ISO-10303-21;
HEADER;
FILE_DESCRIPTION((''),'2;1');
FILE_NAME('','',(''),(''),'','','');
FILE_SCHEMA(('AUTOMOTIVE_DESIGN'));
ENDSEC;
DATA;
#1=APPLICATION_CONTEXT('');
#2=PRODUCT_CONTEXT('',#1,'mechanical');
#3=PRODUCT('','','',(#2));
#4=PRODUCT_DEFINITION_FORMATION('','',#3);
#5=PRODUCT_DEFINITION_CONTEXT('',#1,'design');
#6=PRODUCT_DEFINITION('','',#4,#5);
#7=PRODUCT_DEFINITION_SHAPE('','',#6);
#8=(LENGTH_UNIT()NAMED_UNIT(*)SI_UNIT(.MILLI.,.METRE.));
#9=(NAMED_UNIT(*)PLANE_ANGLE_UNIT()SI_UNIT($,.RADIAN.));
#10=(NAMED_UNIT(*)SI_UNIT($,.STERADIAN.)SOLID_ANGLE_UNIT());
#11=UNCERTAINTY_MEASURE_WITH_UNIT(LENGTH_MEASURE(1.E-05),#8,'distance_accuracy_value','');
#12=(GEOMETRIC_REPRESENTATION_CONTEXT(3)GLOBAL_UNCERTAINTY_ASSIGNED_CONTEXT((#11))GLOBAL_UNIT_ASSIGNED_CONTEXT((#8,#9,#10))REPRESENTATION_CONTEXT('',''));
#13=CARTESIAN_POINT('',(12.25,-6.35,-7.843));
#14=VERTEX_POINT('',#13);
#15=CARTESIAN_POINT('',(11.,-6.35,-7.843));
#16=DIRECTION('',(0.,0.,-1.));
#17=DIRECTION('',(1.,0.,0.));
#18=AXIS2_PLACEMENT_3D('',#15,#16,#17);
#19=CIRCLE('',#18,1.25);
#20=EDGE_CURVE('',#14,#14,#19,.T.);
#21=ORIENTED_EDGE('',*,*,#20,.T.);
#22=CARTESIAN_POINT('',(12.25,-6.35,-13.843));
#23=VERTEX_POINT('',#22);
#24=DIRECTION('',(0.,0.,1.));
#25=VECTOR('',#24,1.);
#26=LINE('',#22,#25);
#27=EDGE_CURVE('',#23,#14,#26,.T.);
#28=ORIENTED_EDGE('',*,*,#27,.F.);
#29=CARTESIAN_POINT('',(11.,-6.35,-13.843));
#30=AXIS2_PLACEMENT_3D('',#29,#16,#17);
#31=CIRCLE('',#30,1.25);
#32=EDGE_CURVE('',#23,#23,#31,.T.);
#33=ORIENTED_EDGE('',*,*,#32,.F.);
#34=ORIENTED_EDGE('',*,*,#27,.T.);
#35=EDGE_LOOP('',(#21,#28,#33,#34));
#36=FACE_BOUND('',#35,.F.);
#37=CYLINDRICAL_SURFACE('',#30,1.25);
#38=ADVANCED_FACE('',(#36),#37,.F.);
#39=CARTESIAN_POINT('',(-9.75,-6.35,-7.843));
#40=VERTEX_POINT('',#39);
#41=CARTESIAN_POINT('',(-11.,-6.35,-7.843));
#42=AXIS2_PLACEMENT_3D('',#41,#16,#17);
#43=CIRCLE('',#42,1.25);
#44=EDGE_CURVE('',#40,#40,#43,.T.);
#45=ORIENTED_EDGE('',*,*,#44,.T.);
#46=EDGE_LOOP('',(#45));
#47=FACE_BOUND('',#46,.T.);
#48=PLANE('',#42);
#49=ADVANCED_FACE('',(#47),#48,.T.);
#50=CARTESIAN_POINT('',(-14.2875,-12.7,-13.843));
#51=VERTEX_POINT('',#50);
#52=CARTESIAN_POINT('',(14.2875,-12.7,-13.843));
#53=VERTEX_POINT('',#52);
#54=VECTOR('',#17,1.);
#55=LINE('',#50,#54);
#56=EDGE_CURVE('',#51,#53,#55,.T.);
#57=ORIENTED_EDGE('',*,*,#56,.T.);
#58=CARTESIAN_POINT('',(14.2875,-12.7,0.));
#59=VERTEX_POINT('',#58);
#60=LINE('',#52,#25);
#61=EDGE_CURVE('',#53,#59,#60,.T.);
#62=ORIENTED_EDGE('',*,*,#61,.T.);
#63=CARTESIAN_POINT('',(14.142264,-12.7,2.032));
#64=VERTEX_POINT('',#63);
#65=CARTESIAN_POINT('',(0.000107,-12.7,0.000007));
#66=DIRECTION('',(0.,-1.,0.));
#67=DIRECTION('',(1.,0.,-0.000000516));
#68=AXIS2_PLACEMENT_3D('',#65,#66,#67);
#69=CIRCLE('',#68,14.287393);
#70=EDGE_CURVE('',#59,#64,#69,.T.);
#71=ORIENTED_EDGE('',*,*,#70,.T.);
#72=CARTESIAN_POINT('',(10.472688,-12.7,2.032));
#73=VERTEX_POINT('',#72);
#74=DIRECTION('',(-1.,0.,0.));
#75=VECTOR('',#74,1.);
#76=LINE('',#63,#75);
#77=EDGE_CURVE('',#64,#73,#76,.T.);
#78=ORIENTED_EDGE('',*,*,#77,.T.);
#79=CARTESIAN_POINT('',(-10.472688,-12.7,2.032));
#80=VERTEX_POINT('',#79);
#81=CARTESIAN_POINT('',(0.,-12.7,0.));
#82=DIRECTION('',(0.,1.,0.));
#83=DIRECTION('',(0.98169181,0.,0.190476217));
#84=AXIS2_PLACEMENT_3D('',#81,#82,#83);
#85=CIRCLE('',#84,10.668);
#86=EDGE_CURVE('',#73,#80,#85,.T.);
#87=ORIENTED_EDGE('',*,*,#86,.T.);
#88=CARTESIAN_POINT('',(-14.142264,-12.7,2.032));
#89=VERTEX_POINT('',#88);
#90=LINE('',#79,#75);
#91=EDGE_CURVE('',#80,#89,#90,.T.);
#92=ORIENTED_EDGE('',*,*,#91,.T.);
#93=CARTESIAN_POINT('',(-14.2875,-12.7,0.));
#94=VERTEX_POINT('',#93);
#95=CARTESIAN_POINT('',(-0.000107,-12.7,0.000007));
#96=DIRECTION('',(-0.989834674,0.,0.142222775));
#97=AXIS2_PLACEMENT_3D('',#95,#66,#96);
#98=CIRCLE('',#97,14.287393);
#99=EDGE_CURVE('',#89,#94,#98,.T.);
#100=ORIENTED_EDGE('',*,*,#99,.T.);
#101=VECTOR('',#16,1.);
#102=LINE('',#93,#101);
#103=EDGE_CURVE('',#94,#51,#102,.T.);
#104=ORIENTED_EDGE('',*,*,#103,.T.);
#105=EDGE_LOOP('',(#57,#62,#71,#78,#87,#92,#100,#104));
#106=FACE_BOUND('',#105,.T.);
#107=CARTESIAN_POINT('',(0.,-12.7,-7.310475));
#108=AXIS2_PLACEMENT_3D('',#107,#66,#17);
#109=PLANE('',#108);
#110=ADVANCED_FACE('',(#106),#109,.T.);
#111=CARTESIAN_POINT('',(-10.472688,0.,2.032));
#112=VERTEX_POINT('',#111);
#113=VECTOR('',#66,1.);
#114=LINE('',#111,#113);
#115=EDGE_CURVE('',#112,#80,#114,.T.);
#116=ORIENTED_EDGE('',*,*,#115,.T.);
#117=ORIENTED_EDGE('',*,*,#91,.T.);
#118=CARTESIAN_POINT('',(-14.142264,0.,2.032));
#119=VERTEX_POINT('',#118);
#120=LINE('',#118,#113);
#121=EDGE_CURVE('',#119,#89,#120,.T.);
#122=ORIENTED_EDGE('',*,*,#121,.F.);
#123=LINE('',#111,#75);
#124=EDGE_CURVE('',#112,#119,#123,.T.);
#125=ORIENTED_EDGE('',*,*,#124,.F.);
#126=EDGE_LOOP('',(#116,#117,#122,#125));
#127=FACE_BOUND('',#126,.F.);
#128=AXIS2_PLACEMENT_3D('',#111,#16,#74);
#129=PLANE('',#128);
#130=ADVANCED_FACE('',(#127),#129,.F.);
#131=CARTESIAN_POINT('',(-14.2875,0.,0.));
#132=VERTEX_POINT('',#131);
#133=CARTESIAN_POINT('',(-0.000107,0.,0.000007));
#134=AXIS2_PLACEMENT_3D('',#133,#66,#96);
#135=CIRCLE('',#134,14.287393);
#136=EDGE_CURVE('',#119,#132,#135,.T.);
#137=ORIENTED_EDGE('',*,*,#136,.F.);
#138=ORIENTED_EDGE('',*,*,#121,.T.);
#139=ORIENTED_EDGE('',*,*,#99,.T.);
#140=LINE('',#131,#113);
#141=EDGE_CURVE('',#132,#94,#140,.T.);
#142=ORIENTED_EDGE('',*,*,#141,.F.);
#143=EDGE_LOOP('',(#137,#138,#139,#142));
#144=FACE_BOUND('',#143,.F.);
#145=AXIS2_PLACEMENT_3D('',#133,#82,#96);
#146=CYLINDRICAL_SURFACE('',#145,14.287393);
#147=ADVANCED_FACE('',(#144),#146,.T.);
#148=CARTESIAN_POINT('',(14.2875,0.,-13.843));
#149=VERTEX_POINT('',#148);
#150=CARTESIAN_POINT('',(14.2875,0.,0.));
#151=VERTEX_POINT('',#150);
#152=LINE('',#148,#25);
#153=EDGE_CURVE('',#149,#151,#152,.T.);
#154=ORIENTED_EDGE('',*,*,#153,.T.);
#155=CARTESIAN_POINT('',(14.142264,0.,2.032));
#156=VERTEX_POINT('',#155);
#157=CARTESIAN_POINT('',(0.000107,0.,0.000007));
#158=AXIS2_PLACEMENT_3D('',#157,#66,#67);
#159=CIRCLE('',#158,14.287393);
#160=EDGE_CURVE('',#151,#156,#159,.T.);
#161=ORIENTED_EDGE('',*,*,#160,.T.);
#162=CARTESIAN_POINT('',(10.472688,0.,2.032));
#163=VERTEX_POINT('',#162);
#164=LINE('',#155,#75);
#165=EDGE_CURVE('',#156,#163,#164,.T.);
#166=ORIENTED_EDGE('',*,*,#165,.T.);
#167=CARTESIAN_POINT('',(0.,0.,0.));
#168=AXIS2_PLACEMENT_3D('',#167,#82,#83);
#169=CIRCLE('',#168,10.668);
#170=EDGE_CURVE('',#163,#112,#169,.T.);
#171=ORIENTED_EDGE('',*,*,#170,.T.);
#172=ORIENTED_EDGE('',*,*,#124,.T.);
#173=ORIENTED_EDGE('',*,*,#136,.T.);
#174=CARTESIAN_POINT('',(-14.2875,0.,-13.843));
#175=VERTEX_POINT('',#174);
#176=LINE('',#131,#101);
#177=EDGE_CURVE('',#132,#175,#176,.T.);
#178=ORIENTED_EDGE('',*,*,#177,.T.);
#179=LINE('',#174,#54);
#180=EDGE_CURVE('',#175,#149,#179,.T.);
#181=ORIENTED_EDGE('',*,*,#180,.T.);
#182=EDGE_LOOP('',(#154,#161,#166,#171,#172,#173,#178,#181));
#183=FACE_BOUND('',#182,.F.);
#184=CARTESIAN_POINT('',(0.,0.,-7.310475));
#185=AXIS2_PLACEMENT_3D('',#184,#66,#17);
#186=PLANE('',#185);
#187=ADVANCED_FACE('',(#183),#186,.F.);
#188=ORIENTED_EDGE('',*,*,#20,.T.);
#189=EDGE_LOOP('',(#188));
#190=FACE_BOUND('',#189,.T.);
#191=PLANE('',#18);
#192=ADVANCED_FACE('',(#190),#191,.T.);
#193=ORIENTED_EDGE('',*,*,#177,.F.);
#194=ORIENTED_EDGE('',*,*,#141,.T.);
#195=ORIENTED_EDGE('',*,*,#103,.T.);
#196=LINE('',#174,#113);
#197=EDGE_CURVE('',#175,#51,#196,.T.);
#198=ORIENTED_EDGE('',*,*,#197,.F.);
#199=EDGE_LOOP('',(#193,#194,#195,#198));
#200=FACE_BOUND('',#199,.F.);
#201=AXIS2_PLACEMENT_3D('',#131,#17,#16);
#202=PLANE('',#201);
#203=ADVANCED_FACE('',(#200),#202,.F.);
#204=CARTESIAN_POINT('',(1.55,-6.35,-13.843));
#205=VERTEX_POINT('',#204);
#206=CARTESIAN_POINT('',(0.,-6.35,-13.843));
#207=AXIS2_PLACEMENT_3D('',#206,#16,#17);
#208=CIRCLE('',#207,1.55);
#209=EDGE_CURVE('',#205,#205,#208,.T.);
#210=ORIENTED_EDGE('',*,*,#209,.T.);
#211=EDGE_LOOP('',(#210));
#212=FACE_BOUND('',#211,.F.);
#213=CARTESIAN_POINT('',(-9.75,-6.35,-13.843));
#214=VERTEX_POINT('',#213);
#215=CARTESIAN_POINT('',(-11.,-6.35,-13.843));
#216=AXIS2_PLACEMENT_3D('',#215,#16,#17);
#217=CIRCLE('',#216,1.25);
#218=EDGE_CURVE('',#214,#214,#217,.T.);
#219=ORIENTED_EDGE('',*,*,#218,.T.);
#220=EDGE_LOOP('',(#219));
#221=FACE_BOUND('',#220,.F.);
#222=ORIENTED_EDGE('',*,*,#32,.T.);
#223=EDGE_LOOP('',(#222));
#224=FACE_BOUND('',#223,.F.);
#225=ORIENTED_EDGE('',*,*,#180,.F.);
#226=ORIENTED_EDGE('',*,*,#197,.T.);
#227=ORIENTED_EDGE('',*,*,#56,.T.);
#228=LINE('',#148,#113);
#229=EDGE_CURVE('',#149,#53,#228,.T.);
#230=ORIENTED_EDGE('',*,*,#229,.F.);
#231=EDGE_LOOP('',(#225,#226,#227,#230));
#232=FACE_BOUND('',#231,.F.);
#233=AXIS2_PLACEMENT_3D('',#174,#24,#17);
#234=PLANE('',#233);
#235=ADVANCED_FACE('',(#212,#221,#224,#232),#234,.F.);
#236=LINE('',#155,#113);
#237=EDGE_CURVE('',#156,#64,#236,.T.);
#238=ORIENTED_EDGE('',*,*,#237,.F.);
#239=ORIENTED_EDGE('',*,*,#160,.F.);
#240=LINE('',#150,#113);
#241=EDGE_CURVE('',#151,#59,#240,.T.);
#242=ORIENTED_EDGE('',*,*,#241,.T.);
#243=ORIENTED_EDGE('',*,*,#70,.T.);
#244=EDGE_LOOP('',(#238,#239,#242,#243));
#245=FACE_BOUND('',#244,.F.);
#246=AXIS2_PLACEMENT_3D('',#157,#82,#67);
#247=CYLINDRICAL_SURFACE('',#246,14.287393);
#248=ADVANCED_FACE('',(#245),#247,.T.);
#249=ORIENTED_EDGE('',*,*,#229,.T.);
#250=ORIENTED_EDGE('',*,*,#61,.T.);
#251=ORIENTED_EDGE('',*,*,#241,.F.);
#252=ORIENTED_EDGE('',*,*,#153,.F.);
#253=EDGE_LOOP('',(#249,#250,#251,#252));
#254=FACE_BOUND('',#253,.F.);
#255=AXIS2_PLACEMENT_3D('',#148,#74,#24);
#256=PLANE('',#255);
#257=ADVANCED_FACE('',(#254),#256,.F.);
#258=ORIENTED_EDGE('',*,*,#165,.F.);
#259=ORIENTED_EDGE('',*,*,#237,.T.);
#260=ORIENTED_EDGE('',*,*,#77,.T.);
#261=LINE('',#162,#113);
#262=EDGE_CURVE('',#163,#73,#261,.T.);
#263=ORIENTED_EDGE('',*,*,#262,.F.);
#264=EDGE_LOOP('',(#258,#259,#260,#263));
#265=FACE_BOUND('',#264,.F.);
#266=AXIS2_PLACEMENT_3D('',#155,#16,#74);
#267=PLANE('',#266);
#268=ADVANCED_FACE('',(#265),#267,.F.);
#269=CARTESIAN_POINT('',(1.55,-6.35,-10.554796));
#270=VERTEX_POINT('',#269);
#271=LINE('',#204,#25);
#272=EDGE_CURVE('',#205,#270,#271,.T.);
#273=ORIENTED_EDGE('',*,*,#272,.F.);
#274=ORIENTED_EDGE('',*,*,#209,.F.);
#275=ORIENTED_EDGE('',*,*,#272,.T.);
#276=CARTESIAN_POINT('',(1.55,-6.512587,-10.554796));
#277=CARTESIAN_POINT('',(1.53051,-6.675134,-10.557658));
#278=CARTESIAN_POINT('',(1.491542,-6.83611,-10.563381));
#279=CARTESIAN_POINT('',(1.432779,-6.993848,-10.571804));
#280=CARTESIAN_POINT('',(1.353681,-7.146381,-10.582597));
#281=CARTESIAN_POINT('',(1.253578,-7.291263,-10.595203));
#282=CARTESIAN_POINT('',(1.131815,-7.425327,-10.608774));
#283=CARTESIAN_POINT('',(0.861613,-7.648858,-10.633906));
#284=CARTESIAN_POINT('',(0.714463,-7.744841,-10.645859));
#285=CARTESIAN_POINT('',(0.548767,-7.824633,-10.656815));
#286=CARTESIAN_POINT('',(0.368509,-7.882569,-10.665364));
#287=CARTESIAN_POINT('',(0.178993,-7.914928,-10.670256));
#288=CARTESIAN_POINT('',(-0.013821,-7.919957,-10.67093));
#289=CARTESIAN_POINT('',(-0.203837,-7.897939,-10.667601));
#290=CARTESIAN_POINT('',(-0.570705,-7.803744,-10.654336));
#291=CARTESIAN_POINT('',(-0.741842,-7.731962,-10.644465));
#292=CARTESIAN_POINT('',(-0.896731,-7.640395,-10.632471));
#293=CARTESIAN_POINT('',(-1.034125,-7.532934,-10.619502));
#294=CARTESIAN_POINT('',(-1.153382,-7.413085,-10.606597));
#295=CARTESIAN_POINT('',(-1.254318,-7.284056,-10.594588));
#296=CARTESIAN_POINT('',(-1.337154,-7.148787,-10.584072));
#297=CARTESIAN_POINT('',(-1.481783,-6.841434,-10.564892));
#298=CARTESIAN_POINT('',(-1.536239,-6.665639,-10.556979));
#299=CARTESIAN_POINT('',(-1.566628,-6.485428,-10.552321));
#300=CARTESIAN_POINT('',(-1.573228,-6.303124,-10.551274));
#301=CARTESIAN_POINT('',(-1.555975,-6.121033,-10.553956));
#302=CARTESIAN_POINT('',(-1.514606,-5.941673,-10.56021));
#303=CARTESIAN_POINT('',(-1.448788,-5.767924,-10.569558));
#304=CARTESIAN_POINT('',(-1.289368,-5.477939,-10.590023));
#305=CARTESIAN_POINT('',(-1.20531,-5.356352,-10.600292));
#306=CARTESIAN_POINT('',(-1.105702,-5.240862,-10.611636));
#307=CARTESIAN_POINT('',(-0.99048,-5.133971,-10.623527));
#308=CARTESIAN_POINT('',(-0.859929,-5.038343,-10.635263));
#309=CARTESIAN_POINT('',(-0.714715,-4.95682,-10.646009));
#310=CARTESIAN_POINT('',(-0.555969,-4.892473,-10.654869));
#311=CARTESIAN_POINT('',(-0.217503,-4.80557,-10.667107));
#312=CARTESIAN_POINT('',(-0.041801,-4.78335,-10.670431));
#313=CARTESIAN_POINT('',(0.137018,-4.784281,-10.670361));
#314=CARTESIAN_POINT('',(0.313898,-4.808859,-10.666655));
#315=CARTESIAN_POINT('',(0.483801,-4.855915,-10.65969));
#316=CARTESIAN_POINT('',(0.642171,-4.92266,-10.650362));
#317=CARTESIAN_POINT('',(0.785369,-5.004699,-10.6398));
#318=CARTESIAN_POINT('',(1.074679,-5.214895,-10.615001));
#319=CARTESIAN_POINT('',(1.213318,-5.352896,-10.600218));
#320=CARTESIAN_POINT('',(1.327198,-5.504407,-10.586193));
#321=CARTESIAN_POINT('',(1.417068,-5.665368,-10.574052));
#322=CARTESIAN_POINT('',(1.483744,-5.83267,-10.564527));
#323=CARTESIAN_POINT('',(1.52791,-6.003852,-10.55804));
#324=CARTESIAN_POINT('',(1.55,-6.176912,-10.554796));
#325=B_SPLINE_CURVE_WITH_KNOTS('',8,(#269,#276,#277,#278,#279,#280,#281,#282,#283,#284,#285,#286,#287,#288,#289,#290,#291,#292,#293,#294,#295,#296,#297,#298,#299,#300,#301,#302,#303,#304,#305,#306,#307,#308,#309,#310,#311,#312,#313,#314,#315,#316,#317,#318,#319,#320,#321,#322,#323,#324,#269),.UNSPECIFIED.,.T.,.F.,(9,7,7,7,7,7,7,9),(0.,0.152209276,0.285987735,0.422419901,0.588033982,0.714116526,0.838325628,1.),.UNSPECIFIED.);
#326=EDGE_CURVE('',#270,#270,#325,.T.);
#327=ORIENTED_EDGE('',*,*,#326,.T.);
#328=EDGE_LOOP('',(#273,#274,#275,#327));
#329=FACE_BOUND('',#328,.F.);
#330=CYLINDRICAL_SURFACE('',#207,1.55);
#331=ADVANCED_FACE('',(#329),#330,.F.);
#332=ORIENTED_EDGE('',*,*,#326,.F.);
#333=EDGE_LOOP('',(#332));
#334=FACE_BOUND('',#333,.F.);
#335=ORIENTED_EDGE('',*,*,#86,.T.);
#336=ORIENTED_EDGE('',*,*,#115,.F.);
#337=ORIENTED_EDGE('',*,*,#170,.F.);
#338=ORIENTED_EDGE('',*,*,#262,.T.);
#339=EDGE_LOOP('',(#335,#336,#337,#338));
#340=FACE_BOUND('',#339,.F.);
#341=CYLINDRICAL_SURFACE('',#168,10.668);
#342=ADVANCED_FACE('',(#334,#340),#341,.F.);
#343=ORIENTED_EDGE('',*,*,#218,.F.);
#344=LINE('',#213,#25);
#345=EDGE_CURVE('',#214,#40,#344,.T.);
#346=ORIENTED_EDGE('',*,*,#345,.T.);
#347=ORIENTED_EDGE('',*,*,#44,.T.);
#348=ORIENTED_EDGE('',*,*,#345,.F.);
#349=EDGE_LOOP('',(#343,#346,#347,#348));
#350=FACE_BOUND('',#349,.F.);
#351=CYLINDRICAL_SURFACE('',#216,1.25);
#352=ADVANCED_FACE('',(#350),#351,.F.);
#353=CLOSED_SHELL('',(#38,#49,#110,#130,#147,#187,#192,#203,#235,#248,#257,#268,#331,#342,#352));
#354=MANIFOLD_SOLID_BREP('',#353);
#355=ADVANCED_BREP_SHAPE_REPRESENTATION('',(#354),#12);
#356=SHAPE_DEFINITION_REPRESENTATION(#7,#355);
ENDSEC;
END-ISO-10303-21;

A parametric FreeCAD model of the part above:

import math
import FreeCAD as App
import Part
import Sketcher
Q = App.Units.Quantity

doc = App.newDocument("Part")
params = doc.addObject("Spreadsheet::Sheet", "Params")
for row, (alias, value) in enumerate([
    ("sketch1_radius", "0.42 in"),
    ("sketch1_width", "1.125 in"),
    ("sketch1_height", "0.545 in"),
    ("pad1_length", "0.5 in"),
    ("pocket1_length", "6 mm"),
], start=1):
    params.set(f"A{row}", alias)
    params.set(f"B{row}", "=" + value)
    params.setAlias(f"B{row}", alias)

body = doc.addObject("PartDesign::Body", "Body")

sketch1 = body.newObject("Sketcher::SketchObject", "Sketch")
sketch1.AttachmentSupport = (doc.getObject("XZ_Plane"), [""])
sketch1.MapMode = "FlatFace"
sketch1.addGeometry([
    Part.ArcOfCircle(Part.Circle(App.Vector(0, 0, 0), App.Vector(0, 0, 1), 10.7), math.radians(169), math.radians(371)),
    Part.LineSegment(App.Vector(-10.5, 2, 0), App.Vector(-14.1, 2, 0)),
    Part.ArcOfCircle(Part.Circle(App.Vector(0, 0, 0), App.Vector(0, 0, 1), 14.3), math.radians(171.82), math.radians(180)),
    Part.LineSegment(App.Vector(-14.3, 0, 0), App.Vector(-14.3, -13.8, 0)),
    Part.LineSegment(App.Vector(-14.3, -13.8, 0), App.Vector(14.3, -13.8, 0)),
    Part.LineSegment(App.Vector(14.3, -13.8, 0), App.Vector(14.3, 0, 0)),
    Part.ArcOfCircle(Part.Circle(App.Vector(0, 0, 0), App.Vector(0, 0, 1), 14.3), math.radians(0), math.radians(8.18)),
    Part.LineSegment(App.Vector(14.1, 2, 0), App.Vector(10.5, 2, 0)),
], False)
sketch1.addConstraint([
    Sketcher.Constraint("Coincident", 0, 1, 1, 1),
    Sketcher.Constraint("Coincident", 1, 2, 2, 1),
    Sketcher.Constraint("Tangent", 2, 2, 3, 1),
    Sketcher.Constraint("Coincident", 3, 2, 4, 1),
    Sketcher.Constraint("Coincident", 4, 2, 5, 1),
    Sketcher.Constraint("Tangent", 5, 2, 6, 1),
    Sketcher.Constraint("Coincident", 6, 2, 7, 1),
    Sketcher.Constraint("Coincident", 7, 2, 0, 2),
    Sketcher.Constraint("Horizontal", 1),
    Sketcher.Constraint("Vertical", 3),
    Sketcher.Constraint("Horizontal", 4),
    Sketcher.Constraint("Vertical", 5),
    Sketcher.Constraint("Horizontal", 7),
    Sketcher.Constraint("Coincident", 0, 3, -1, 1),
    Sketcher.Constraint("Equal", 2, 6),
    Sketcher.Constraint("Symmetric", 2, 2, 5, 2, -1, 1),
    Sketcher.Constraint("Symmetric", 1, 2, 6, 2, -2),
    Sketcher.Constraint("Radius", 0, Q("0.42 in")),
    Sketcher.Constraint("DistanceX", 4, 1, 4, 2, Q("1.125 in")),
    Sketcher.Constraint("DistanceY", 3, 2, 3, 1, Q("0.545 in")),
    Sketcher.Constraint("DistanceY", -1, 1, 0, 1, Q("0.08 in")),
    Sketcher.Constraint("Radius", 2, 14.287393),
])
sketch1.setExpression("Constraints[17]", "Params.sketch1_radius")
sketch1.setExpression("Constraints[18]", "Params.sketch1_width")
sketch1.setExpression("Constraints[19]", "Params.sketch1_height")
pad1 = body.newObject("PartDesign::Pad", "Pad")
pad1.Profile = sketch1
pad1.setExpression("Length", "Params.pad1_length")

sketch2 = body.newObject("Sketcher::SketchObject", "Sketch001")
sketch2.AttachmentSupport = (doc.getObject("XY_Plane"), [""])
sketch2.MapMode = "FlatFace"
sketch2.AttachmentOffset = App.Placement(App.Vector(0, 0, -0.545 * 25.4), App.Rotation())
sketch2.addGeometry([
    Part.Circle(App.Vector(-11, -6.3, 0), App.Vector(0, 0, 1), 1.2),
    Part.Circle(App.Vector(11, -6.3, 0), App.Vector(0, 0, 1), 1.2),
    Part.Circle(App.Vector(0, -6.3, 0), App.Vector(0, 0, 1), 1.6),
], False)
sketch2.addConstraint([
    Sketcher.Constraint("Equal", 0, 1),
    Sketcher.Constraint("Symmetric", 0, 3, 1, 3, -2),
    Sketcher.Constraint("PointOnObject", 2, 3, -2),
    Sketcher.Constraint("Horizontal", 1, 3, 2, 3),
    Sketcher.Constraint("Diameter", 0, 2.5),
    Sketcher.Constraint("Diameter", 2, 3.1),
    Sketcher.Constraint("DistanceY", 0, 3, -1, 1, Q("0.25 in")),
    Sketcher.Constraint("DistanceX", 0, 3, -1, 1, 11.0),
])
pocket1 = body.newObject("PartDesign::Pocket", "Pocket")
pocket1.Profile = sketch2
pocket1.setExpression("Length", "Params.pocket1_length")
pocket1.Reversed = True

doc.recompute()
